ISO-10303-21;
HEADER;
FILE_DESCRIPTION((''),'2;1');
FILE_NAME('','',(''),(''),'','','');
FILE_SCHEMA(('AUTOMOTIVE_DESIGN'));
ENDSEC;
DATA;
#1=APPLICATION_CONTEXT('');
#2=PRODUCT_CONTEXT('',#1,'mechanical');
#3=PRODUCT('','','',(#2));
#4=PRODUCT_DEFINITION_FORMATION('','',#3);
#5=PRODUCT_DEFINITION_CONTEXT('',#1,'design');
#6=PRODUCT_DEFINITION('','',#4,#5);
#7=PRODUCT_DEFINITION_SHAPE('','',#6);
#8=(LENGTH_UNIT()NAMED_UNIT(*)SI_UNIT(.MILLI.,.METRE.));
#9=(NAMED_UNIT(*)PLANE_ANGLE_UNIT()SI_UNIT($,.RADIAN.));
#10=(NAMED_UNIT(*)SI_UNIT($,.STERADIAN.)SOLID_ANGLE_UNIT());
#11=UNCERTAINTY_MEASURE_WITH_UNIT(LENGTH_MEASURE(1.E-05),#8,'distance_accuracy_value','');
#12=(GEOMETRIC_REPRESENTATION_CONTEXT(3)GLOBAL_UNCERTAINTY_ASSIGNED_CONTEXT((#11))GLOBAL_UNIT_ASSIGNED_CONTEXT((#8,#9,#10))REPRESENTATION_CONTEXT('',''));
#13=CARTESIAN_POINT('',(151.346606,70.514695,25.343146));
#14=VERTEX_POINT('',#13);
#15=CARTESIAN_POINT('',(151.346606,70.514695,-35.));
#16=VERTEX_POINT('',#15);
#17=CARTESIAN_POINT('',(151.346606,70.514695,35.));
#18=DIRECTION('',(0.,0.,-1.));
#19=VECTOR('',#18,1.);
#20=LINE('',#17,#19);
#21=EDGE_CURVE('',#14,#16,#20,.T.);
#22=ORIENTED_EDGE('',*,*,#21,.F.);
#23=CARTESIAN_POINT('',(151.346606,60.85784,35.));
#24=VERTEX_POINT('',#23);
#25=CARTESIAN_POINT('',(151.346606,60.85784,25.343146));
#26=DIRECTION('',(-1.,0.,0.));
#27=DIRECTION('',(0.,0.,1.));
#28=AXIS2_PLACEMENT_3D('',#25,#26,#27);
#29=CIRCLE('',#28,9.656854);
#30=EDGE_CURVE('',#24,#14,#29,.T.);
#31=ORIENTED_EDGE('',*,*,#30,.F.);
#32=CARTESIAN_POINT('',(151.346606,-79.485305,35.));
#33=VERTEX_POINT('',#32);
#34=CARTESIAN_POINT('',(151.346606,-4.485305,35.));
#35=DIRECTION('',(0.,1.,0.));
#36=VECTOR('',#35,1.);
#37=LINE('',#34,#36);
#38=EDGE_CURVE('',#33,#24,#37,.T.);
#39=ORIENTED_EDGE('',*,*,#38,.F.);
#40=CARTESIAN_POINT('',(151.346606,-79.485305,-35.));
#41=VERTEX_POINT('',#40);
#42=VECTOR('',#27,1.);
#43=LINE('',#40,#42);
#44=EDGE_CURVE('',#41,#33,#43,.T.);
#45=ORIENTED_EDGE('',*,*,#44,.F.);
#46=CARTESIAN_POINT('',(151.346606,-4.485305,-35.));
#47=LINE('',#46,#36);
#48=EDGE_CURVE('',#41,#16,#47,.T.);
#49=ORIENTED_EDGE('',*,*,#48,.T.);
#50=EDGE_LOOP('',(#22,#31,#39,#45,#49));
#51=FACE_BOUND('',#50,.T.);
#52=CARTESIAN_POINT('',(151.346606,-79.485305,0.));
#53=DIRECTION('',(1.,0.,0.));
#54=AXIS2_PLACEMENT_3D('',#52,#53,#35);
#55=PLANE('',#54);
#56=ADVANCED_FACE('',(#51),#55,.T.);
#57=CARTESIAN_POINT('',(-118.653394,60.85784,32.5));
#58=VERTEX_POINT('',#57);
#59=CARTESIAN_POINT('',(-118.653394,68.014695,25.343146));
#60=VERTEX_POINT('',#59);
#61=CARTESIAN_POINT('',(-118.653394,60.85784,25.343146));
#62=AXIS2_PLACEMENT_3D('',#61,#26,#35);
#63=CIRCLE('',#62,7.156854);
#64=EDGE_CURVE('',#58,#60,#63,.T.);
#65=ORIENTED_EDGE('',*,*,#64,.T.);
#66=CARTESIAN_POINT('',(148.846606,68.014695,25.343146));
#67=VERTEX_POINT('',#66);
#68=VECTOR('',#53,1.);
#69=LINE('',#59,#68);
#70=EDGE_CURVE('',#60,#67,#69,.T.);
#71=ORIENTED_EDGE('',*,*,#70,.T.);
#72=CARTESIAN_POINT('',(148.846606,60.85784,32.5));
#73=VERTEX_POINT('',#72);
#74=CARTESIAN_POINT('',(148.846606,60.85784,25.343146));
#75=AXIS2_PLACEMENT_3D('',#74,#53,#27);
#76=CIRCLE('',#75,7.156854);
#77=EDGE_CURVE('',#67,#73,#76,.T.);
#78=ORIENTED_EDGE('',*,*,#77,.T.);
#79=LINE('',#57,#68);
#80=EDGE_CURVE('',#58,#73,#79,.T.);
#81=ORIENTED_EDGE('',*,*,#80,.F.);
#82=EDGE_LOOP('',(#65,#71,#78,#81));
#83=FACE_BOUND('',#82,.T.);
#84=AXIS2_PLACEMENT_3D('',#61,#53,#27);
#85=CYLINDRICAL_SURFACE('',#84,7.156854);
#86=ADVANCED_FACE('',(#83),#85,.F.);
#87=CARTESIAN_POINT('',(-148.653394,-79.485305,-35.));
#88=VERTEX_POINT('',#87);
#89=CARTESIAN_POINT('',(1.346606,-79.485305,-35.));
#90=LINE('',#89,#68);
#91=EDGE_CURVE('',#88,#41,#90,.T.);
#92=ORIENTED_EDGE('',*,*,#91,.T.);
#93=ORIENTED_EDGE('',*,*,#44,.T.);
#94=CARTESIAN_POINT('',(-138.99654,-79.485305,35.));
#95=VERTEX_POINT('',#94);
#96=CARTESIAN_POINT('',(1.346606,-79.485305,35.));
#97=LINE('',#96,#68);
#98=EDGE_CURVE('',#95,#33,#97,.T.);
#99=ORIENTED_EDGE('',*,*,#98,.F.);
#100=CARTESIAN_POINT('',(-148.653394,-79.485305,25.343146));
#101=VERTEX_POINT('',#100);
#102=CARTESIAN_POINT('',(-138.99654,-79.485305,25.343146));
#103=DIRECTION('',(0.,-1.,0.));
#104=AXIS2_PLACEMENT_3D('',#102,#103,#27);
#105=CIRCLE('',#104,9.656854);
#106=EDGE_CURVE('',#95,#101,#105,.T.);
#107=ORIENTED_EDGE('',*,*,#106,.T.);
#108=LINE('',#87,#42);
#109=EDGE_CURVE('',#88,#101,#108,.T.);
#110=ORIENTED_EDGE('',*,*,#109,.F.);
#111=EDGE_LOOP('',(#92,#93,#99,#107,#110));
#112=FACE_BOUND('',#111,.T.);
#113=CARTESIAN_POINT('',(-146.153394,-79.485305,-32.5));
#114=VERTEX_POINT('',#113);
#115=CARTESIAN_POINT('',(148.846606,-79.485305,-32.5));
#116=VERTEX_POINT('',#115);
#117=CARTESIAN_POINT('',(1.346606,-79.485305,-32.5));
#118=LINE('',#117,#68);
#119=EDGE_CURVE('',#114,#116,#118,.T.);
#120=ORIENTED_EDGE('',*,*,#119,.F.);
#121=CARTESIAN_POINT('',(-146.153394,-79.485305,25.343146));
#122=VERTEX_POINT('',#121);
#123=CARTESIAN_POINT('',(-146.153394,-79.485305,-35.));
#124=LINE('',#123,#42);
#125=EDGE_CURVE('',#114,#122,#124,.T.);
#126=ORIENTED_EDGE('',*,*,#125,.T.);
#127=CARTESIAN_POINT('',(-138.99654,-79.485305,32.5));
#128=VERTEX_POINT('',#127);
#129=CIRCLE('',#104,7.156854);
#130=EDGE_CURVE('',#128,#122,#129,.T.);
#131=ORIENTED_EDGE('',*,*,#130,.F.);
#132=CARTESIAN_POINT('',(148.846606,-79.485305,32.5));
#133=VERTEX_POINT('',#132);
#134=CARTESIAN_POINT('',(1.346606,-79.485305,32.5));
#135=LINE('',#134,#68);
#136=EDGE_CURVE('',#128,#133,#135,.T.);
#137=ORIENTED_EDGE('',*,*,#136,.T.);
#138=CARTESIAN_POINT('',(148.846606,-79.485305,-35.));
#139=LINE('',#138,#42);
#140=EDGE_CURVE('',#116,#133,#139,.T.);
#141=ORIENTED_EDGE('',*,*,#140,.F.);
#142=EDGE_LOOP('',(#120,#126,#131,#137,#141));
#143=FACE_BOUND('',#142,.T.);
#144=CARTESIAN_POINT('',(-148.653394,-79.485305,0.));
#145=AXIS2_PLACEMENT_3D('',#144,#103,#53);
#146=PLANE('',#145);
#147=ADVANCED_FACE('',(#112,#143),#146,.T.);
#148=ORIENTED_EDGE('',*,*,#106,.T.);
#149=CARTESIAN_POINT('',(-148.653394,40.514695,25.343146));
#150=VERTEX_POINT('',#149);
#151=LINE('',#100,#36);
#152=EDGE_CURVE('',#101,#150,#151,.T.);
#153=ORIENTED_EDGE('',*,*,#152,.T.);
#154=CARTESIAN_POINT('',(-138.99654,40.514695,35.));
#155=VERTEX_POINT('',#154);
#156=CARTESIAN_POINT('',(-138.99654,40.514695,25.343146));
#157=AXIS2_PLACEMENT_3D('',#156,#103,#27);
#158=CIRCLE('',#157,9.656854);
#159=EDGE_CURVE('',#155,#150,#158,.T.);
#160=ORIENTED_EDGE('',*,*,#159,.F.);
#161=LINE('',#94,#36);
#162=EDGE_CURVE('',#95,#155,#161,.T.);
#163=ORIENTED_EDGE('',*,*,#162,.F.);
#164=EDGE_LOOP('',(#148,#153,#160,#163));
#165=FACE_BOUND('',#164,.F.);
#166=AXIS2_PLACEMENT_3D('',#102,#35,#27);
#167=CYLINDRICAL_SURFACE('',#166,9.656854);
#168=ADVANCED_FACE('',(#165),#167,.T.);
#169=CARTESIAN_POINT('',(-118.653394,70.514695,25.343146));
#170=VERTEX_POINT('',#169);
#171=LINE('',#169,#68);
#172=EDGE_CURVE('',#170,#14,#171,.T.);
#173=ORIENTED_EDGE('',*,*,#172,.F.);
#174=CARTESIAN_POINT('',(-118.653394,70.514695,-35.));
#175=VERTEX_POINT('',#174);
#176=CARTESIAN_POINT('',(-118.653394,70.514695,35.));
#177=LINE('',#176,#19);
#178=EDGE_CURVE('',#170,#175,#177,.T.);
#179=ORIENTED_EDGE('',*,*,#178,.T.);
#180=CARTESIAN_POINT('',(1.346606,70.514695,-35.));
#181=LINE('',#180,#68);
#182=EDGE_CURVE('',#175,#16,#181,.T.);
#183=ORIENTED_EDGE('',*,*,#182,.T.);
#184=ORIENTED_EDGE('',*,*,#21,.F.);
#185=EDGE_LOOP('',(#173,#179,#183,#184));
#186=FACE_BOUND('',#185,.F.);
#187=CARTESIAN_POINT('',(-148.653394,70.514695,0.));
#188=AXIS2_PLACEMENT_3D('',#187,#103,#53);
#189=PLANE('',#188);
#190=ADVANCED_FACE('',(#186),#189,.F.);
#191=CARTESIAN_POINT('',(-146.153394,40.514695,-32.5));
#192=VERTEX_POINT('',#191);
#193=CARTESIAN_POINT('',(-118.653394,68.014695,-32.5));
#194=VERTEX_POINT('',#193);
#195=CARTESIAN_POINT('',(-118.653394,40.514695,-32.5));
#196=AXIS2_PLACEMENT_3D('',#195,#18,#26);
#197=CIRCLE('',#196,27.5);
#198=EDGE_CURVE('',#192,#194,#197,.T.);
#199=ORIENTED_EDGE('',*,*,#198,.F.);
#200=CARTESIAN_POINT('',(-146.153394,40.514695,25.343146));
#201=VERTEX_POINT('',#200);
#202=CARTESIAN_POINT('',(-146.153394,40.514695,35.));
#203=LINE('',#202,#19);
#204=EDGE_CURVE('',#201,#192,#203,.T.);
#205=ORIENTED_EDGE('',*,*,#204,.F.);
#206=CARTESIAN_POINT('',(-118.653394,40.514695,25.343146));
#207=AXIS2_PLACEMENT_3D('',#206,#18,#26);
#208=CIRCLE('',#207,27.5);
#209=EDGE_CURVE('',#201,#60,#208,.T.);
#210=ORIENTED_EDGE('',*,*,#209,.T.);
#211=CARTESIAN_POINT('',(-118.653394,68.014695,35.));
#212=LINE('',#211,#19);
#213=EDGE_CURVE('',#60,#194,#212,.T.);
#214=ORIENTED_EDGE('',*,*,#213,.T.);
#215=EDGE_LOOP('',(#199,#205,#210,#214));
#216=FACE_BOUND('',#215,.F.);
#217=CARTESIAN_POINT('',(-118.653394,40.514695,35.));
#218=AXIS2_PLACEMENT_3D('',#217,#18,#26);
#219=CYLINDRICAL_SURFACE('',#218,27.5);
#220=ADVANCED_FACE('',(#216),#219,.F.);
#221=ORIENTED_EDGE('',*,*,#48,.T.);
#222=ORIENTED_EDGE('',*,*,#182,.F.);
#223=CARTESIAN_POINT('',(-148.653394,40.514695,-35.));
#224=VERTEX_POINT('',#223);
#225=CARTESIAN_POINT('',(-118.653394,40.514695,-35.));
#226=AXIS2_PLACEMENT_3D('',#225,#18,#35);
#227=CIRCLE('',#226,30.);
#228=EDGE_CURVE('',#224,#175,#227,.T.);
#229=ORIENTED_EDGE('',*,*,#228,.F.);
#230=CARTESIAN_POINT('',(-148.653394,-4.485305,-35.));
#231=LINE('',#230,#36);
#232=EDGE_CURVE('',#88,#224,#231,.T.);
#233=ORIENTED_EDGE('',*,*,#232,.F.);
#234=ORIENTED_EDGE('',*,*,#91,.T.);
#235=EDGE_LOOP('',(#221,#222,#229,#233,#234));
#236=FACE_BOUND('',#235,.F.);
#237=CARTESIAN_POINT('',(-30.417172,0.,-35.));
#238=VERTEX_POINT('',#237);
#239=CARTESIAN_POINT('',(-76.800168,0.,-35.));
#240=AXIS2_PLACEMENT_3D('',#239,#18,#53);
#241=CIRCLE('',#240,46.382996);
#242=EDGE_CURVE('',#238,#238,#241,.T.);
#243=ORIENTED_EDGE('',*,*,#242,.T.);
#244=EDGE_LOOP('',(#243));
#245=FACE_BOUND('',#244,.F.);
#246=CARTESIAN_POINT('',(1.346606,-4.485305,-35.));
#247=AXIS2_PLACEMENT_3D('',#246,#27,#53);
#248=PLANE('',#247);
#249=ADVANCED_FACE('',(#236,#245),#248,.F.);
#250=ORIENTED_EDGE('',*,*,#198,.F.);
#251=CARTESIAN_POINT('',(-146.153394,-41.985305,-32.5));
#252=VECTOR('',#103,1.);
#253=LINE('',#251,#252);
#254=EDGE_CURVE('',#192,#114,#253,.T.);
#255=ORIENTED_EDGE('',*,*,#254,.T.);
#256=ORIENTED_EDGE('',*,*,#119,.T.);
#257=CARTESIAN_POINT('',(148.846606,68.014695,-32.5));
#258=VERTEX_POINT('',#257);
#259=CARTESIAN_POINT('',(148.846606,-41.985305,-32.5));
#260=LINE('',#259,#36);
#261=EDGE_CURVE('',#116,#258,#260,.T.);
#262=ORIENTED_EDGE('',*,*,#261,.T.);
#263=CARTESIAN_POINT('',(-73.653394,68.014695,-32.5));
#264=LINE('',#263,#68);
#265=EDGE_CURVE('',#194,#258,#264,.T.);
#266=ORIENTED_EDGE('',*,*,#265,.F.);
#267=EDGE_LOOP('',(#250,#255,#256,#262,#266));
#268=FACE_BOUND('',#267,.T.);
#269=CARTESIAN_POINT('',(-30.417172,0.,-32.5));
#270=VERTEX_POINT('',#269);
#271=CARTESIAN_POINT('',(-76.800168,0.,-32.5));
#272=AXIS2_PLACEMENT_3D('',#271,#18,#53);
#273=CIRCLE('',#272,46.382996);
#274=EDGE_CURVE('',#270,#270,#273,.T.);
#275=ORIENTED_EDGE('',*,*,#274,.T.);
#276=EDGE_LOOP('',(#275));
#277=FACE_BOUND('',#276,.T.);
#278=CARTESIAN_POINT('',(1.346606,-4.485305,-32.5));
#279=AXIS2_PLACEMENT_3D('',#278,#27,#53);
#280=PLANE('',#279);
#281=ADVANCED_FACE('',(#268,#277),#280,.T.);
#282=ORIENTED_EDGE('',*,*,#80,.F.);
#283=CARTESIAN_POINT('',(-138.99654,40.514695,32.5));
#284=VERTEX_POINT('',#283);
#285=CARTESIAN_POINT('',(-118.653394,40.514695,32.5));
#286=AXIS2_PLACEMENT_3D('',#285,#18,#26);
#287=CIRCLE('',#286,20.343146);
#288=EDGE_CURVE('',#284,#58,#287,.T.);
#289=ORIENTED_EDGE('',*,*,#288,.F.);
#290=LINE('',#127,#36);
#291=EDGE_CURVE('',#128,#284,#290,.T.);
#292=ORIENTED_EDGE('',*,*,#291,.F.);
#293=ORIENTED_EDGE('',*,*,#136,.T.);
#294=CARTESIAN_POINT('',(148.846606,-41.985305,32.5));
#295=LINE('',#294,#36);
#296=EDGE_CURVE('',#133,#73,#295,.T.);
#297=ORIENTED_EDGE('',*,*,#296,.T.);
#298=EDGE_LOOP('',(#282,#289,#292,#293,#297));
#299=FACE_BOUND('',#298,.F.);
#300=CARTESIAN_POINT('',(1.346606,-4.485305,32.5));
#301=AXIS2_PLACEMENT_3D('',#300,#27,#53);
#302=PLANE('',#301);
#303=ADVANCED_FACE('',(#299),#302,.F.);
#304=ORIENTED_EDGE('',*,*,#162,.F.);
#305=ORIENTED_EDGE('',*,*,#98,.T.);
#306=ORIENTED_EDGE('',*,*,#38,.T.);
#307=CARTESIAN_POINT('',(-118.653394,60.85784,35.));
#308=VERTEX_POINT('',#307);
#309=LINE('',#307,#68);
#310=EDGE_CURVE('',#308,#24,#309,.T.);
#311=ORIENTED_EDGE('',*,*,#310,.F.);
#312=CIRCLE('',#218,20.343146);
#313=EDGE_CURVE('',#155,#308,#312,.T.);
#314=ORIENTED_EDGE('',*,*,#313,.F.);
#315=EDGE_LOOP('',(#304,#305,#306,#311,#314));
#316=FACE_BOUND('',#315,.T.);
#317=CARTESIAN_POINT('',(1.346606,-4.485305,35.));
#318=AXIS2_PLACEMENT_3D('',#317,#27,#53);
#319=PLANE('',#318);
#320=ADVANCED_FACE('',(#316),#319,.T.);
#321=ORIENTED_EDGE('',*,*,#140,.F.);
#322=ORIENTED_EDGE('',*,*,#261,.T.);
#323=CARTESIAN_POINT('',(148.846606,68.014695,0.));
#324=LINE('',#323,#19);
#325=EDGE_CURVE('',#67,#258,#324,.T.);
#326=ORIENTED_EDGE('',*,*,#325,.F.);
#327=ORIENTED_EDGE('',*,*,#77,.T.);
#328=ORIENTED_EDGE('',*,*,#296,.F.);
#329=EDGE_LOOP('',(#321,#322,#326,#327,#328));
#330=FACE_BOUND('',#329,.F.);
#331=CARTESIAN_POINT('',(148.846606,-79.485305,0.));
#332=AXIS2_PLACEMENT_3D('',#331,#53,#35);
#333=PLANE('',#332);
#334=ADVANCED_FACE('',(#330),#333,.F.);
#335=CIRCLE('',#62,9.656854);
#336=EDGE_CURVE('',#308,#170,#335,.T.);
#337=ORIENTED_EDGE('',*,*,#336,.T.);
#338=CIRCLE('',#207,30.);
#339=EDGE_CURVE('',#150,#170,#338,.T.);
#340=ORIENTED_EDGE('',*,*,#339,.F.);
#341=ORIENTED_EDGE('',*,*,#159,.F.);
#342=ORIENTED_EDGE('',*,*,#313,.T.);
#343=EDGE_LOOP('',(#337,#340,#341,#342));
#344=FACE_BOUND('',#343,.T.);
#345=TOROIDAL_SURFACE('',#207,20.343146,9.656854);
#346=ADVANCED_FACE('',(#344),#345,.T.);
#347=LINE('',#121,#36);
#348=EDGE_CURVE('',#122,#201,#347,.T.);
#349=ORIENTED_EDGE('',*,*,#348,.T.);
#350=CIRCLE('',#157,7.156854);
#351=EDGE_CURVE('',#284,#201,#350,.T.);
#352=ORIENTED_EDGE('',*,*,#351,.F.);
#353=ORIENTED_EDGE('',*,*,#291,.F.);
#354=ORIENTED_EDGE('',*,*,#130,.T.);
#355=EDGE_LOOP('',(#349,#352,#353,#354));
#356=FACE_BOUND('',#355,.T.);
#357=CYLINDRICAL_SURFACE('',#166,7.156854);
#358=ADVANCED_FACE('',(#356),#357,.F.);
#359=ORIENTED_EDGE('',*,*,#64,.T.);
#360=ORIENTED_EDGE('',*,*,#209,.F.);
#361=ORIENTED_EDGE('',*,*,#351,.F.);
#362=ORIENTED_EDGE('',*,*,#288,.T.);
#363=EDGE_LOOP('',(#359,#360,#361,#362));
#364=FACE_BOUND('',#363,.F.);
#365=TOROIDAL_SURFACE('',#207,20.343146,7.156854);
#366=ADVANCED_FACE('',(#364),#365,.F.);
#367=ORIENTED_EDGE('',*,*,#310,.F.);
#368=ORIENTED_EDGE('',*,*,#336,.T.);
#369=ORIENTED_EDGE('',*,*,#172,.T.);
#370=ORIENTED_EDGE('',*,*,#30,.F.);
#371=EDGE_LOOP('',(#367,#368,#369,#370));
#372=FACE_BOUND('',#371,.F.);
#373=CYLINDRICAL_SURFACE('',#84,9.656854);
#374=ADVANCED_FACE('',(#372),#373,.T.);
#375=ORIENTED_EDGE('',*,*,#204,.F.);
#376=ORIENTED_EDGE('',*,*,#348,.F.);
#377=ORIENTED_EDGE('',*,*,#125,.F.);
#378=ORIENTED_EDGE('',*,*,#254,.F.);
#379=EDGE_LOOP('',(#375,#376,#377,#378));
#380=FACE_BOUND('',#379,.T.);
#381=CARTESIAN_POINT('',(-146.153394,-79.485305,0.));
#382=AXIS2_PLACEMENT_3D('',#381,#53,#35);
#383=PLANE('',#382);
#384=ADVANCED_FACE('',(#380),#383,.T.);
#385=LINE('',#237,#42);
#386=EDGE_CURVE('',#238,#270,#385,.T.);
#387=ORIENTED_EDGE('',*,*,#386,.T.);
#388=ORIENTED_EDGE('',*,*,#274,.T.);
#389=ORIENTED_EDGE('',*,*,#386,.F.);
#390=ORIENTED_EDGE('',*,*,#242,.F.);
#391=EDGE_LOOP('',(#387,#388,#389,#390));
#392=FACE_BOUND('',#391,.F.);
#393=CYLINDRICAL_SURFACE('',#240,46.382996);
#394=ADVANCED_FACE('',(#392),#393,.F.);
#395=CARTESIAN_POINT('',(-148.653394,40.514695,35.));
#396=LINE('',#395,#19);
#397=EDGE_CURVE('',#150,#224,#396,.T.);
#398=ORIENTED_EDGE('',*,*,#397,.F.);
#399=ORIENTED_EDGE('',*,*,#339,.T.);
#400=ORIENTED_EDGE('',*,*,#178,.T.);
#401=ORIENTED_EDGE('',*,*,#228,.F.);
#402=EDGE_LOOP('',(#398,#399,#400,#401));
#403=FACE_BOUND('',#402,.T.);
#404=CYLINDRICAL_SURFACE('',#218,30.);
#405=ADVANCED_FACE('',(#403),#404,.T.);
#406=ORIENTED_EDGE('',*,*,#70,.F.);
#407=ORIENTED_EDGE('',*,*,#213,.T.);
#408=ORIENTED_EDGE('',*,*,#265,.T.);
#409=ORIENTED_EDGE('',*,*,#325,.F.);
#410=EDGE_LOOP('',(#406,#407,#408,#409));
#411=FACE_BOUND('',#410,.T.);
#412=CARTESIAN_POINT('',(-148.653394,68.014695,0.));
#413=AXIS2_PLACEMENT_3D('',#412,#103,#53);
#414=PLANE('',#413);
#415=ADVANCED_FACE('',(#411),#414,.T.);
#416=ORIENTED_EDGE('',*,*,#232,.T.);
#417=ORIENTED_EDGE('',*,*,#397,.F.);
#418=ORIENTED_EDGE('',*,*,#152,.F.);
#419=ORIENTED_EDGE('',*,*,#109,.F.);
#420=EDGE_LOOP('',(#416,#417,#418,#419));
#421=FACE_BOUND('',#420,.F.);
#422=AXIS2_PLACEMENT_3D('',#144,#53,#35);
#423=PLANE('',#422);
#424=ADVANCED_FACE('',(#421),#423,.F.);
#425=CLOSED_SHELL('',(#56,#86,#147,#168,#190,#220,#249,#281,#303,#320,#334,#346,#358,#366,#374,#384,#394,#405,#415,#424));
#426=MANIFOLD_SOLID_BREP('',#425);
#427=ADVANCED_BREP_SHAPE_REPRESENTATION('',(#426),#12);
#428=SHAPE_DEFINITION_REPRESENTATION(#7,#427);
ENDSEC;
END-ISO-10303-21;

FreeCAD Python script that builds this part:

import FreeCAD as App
import Part
import Sketcher


def edges_at(feature, points):
    """Names of the edges that pass closest to the given points."""
    edges = feature.Shape.Edges
    near = lambda p: min(range(len(edges)), key=lambda i: edges[i].distToShape(Part.Vertex(*p))[0])
    return sorted({f"Edge{near(p) + 1}" for p in points})


def faces_at(feature, points):
    """Names of the faces that lie closest to the given points."""
    faces = feature.Shape.Faces
    near = lambda p: min(range(len(faces)), key=lambda i: faces[i].distToShape(Part.Vertex(*p))[0])
    return sorted({f"Face{near(p) + 1}" for p in points})


def add_polygon(sketch, points):
    """Adds a closed chain of lines whose ends are joined by coincident constraints."""
    first, n = sketch.GeometryCount, len(points)
    for a, b in zip(points, points[1:] + points[:1]):
        sketch.addGeometry(Part.LineSegment(App.Vector(*a, 0), App.Vector(*b, 0)), False)
    for i in range(n):
        sketch.addConstraint(Sketcher.Constraint("Coincident", first + i, 2, first + (i + 1) % n, 1))

doc = App.newDocument("Part")
body = doc.addObject("PartDesign::Body", "Body")

# Sketch on XY plane
sketch1 = body.newObject("Sketcher::SketchObject", "Sketch")
sketch1.AttachmentSupport = (doc.getObject("XY_Plane"), [""])
sketch1.MapMode = "FlatFace"
add_polygon(sketch1, [(-149, 71), (-149, -79), (151, -79), (151, 71)])  # lines 0-3
sketch1.addConstraint([
    Sketcher.Constraint("Vertical", 0),
    Sketcher.Constraint("Horizontal", 1),
    Sketcher.Constraint("Vertical", 2),
    Sketcher.Constraint("Horizontal", 3),
    Sketcher.Constraint("DistanceX", 1, 1, 1, 2, 300.0),
    Sketcher.Constraint("DistanceY", 0, 2, 0, 1, 150.0),
    Sketcher.Constraint("DistanceX", 0, 2, -1, 1, 148.653394),
    Sketcher.Constraint("DistanceY", 0, 2, -1, 1, 79.485305),
])
pad1 = body.newObject("PartDesign::Pad", "Pad")
pad1.Profile = sketch1
pad1.Length = 70
pad1.Midplane = True
doc.recompute()

fillet = body.newObject("PartDesign::Fillet", "Fillet")
fillet.Base = (pad1, edges_at(pad1, [(-148.653, 70.515, 0)]))
fillet.Radius = 30
doc.recompute()

fillet2 = body.newObject("PartDesign::Fillet", "Fillet001")
fillet2.Base = (fillet, edges_at(fillet, [(16.347, 70.515, 35)]))
fillet2.Radius = 9.656854
doc.recompute()

thickness = body.newObject("PartDesign::Thickness", "Thickness")
thickness.Base = (fillet2, faces_at(fillet2, [(1.347, -79.485, 0)]))
thickness.Value = 2.5
thickness.Reversed = True
thickness.Join = "Arc"

# Sketch on XY plane
sketch2 = body.newObject("Sketcher::SketchObject", "Sketch001")
sketch2.AttachmentSupport = (doc.getObject("XY_Plane"), [""])
sketch2.MapMode = "FlatFace"
sketch2.AttachmentOffset = App.Placement(App.Vector(0, 0, -35), App.Rotation())
sketch2.addGeometry(Part.Circle(App.Vector(-77, 0, 0), App.Vector(0, 0, 1), 46), False)
sketch2.addConstraint([
    Sketcher.Constraint("PointOnObject", 0, 3, -1),
    Sketcher.Constraint("Diameter", 0, 92.765992),
    Sketcher.Constraint("DistanceX", 0, 3, -1, 1, 76.800168),
])
pocket1 = body.newObject("PartDesign::Pocket", "Pocket")
pocket1.Profile = sketch2
pocket1.Length = 14
pocket1.Reversed = True

doc.recompute()
